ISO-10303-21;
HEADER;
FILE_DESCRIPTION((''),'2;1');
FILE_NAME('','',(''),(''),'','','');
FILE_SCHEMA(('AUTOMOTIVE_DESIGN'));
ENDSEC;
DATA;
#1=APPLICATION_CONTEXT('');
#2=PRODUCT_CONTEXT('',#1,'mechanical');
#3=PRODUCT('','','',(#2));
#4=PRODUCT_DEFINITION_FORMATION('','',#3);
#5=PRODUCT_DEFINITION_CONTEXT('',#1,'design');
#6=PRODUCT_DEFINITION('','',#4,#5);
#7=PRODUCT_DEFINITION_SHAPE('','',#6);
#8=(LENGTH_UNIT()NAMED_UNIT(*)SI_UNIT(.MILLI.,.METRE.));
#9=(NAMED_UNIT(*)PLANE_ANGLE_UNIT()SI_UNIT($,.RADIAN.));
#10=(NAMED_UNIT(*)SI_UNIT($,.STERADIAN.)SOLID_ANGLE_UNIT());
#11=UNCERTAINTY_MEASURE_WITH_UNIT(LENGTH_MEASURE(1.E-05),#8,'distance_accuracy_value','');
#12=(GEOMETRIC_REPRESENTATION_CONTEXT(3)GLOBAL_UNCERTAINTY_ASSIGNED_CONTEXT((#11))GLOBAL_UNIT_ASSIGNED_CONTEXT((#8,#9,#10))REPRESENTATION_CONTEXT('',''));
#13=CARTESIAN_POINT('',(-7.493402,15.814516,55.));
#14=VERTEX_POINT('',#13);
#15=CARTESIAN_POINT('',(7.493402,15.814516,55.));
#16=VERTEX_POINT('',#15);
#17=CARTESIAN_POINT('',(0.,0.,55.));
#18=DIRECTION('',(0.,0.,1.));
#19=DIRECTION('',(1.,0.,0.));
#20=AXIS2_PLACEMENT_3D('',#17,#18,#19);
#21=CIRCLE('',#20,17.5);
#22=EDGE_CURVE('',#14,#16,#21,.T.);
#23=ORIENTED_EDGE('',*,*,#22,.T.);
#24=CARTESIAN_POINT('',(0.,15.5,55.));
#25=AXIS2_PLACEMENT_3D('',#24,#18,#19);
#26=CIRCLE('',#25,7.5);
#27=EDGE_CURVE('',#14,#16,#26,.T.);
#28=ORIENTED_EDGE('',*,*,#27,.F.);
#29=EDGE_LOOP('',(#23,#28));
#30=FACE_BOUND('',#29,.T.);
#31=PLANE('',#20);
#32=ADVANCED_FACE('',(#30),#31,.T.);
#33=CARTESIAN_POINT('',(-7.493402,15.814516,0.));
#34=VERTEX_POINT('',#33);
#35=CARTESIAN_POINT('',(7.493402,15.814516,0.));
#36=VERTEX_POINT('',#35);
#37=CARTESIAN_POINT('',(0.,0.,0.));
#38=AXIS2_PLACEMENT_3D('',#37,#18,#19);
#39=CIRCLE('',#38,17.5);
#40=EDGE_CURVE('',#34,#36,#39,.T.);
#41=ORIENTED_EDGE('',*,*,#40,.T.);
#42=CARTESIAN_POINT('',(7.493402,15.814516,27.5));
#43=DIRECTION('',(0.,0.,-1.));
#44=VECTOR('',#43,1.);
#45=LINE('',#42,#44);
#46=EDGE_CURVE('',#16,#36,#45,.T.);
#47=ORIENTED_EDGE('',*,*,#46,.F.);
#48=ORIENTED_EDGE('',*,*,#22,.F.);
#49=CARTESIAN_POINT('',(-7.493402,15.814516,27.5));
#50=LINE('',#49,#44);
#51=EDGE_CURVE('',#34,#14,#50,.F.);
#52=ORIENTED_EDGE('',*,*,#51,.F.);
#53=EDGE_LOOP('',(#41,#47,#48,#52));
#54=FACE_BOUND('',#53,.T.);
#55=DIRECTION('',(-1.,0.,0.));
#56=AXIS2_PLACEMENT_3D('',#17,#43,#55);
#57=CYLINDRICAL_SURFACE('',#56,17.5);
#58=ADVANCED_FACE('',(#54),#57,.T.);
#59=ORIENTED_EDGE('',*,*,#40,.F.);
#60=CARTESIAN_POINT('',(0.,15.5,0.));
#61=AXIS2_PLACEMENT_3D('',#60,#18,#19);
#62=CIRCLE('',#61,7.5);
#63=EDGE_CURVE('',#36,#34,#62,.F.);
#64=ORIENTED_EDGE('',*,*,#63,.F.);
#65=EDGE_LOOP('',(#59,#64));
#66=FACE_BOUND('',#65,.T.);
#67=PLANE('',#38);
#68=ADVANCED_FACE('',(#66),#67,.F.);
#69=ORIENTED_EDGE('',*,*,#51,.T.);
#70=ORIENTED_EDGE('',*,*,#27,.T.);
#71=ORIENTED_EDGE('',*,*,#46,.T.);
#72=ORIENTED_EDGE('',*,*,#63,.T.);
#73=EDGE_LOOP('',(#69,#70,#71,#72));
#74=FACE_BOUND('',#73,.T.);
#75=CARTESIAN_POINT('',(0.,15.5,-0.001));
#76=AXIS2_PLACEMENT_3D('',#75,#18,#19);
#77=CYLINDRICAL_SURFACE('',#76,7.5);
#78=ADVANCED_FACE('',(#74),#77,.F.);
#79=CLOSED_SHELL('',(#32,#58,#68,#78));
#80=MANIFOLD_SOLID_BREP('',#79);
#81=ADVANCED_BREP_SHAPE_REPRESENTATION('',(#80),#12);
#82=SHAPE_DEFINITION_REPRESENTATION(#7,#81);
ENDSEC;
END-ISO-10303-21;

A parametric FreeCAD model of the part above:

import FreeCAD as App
import Part
import Sketcher

V = App.Vector

doc = App.newDocument("Part")
body = doc.addObject("PartDesign::Body", "Body")

# Sketch on XY plane
sketch1 = body.newObject("Sketcher::SketchObject", "Sketch")
sketch1.AttachmentSupport = (doc.getObject("XY_Plane"), [""])
sketch1.MapMode = "FlatFace"
sketch1.addGeometry(Part.Circle(V(0, 0, 0), V(0, 0, 1), 18), False)
sketch1.addConstraint([
    Sketcher.Constraint("Coincident", 0, 3, -1, 1),
    Sketcher.Constraint("Diameter", 0, 35.0),
])
pad1 = body.newObject("PartDesign::Pad", "Pad")
pad1.Profile = sketch1
pad1.Length = 55

# Sketch on XY plane
sketch2 = body.newObject("Sketcher::SketchObject", "Sketch001")
sketch2.AttachmentSupport = (doc.getObject("XY_Plane"), [""])
sketch2.MapMode = "FlatFace"
sketch2.AttachmentOffset = App.Placement(V(0, 0, 55), App.Rotation())
sketch2.addGeometry(Part.Circle(V(0, 16, 0), V(0, 0, 1), 8), False)
sketch2.addConstraint([
    Sketcher.Constraint("PointOnObject", 0, 3, -2),
    Sketcher.Constraint("Diameter", 0, 15.0),
    Sketcher.Constraint("DistanceY", -1, 1, 0, 3, 15.5),
])
pocket1 = body.newObject("PartDesign::Pocket", "Pocket")
pocket1.Profile = sketch2
pocket1.Type = "UpToFirst"

doc.recompute()
